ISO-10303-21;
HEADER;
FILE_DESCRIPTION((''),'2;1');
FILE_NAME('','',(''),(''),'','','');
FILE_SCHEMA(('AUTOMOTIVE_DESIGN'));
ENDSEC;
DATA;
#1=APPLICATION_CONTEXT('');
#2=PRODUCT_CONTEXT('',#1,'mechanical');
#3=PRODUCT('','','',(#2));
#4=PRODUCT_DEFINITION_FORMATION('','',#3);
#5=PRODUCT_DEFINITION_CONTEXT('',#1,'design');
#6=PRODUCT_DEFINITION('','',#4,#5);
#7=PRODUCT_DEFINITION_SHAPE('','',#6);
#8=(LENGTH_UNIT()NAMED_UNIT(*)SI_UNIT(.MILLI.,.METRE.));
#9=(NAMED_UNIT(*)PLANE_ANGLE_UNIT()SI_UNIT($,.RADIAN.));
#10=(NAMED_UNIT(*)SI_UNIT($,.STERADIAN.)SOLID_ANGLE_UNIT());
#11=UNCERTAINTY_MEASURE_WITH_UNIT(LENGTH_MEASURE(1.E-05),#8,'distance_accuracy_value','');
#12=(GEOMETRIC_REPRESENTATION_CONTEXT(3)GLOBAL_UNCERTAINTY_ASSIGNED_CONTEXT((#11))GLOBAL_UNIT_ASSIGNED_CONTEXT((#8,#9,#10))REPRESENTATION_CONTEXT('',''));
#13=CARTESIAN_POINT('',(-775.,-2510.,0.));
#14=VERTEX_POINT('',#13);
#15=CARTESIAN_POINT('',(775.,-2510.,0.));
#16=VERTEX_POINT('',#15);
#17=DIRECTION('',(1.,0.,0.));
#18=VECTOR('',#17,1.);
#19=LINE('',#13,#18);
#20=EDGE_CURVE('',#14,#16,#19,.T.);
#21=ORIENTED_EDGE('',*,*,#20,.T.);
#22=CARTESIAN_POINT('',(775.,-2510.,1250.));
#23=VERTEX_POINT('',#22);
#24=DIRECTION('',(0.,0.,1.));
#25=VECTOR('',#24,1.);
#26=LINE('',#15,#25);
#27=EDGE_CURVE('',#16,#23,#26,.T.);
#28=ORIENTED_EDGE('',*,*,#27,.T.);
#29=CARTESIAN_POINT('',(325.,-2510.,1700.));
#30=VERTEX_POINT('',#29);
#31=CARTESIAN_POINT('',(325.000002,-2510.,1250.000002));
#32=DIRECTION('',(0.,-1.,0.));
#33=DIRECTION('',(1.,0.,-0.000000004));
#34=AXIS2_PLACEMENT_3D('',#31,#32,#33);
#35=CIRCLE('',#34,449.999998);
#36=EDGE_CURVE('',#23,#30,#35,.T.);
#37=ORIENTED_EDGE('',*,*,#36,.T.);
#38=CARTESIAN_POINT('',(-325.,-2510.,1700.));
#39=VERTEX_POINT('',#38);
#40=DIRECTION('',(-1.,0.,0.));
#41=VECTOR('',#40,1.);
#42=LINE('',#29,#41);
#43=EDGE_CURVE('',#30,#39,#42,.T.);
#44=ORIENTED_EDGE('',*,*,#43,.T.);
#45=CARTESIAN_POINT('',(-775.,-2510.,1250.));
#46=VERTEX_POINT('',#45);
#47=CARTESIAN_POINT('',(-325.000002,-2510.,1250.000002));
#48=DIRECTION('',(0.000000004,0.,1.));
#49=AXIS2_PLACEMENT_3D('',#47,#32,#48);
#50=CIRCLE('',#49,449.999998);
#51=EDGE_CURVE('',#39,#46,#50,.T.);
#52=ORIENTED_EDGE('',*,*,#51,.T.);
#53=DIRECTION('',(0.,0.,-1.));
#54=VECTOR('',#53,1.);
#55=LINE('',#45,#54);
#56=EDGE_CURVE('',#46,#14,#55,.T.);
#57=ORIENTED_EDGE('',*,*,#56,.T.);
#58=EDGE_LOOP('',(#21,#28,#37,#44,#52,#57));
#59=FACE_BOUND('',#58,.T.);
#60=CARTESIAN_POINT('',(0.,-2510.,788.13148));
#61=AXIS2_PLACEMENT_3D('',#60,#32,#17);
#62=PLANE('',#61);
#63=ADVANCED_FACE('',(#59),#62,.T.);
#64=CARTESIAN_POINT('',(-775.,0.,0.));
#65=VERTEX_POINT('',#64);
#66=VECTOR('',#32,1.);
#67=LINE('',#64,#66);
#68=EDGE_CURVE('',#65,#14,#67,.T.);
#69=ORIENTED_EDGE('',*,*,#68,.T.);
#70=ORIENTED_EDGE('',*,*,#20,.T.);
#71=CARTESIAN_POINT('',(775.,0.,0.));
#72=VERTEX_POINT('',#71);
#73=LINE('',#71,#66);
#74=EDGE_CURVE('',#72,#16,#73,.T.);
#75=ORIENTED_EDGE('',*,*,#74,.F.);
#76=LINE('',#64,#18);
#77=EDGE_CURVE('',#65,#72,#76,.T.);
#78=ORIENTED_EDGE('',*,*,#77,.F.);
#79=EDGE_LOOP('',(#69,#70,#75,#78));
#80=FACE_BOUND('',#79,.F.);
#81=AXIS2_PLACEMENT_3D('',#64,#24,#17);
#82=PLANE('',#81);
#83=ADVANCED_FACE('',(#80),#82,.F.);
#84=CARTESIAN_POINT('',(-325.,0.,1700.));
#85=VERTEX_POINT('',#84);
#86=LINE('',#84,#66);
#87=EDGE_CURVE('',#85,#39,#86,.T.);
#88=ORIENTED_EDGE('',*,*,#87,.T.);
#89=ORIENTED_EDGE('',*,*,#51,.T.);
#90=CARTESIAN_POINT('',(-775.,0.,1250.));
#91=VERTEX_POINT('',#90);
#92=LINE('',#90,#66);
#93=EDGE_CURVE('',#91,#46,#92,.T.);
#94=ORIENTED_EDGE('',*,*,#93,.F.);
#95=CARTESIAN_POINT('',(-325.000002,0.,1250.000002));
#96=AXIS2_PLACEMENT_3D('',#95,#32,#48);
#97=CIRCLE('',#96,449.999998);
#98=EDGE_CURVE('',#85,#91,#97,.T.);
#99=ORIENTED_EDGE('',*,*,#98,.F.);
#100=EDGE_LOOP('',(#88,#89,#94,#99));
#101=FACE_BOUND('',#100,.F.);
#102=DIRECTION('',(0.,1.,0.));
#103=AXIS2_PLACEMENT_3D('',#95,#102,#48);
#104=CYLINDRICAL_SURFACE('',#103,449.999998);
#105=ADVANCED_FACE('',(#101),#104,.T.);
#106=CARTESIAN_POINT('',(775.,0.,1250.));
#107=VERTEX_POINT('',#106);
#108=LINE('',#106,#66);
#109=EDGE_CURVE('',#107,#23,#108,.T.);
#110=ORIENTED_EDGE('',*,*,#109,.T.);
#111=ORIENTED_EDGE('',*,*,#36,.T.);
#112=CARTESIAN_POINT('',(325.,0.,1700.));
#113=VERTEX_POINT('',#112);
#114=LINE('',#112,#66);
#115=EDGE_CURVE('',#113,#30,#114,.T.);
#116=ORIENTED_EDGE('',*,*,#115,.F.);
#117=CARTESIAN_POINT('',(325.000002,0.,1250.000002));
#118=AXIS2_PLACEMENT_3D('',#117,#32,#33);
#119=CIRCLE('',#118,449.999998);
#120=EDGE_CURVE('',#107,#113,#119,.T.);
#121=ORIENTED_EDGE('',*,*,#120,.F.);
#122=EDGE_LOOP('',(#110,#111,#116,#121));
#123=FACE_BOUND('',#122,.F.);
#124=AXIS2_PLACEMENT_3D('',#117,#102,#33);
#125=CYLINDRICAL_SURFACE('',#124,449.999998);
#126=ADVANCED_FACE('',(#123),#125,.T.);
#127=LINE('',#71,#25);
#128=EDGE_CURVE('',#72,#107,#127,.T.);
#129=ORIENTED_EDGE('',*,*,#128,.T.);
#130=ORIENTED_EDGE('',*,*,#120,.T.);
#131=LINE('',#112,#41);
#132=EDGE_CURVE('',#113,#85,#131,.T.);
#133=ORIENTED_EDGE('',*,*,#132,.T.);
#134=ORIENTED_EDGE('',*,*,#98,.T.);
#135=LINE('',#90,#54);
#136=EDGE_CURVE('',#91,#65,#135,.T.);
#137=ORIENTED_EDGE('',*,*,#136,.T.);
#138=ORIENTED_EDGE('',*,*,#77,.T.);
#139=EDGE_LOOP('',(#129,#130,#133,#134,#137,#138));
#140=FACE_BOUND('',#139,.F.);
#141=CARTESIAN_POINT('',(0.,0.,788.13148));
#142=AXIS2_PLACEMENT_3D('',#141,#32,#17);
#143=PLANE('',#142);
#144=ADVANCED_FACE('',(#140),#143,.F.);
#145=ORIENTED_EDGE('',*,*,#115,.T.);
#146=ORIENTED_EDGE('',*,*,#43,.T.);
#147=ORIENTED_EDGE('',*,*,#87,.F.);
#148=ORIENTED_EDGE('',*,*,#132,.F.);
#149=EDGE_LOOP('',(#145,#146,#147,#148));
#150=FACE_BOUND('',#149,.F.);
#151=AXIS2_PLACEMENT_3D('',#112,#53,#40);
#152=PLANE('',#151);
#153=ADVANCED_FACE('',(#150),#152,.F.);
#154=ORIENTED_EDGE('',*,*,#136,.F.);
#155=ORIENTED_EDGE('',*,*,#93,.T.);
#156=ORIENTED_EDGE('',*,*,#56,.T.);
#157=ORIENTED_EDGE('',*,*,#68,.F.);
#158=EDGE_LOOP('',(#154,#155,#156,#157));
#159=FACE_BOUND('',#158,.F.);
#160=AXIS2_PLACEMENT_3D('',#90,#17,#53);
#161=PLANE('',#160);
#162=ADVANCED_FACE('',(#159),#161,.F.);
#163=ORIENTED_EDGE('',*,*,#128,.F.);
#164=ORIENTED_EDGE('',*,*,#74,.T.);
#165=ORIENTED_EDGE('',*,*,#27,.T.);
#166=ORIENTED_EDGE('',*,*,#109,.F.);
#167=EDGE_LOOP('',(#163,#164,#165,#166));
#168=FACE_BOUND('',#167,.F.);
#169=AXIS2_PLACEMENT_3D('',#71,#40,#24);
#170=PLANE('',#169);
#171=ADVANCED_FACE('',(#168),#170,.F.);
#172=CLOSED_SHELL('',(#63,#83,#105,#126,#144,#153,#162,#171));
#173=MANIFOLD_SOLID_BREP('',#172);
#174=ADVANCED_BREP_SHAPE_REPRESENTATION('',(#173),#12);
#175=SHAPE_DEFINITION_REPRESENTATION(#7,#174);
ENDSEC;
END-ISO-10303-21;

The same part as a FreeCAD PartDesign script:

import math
import FreeCAD as App
import Part
import Sketcher
from FreeCAD import Vector

doc = App.newDocument("Part")
body = doc.addObject("PartDesign::Body", "Body")

# Sketch on XZ plane
sketch1 = body.newObject("Sketcher::SketchObject", "Sketch")
sketch1.AttachmentSupport = (doc.getObject("XZ_Plane"), [""])
sketch1.MapMode = "FlatFace"
sketch1.addGeometry(Part.LineSegment(Vector(-775, 1250, 0), Vector(-775, 0, 0)), False)
sketch1.addGeometry(Part.LineSegment(Vector(-775, 0, 0), Vector(775, 0, 0)), False)
sketch1.addGeometry(Part.LineSegment(Vector(775, 0, 0), Vector(775, 1250, 0)), False)
sketch1.addGeometry(Part.ArcOfCircle(Part.Circle(Vector(325, 1250, 0), Vector(0, 0, 1), 450), math.radians(0), math.radians(90)), False)
sketch1.addGeometry(Part.LineSegment(Vector(325, 1700, 0), Vector(-325, 1700, 0)), False)
sketch1.addGeometry(Part.ArcOfCircle(Part.Circle(Vector(-325, 1250, 0), Vector(0, 0, 1), 450), math.radians(90), math.radians(180)), False)
sketch1.addConstraint(Sketcher.Constraint("Coincident", 0, 2, 1, 1))
sketch1.addConstraint(Sketcher.Constraint("Coincident", 1, 2, 2, 1))
sketch1.addConstraint(Sketcher.Constraint("Tangent", 2, 2, 3, 1))
sketch1.addConstraint(Sketcher.Constraint("Tangent", 3, 2, 4, 1))
sketch1.addConstraint(Sketcher.Constraint("Tangent", 4, 2, 5, 1))
sketch1.addConstraint(Sketcher.Constraint("Tangent", 5, 2, 0, 1))
sketch1.addConstraint(Sketcher.Constraint("Vertical", 0))
sketch1.addConstraint(Sketcher.Constraint("Horizontal", 1))
sketch1.addConstraint(Sketcher.Constraint("Vertical", 2))
sketch1.addConstraint(Sketcher.Constraint("Horizontal", 4))
sketch1.addConstraint(Sketcher.Constraint("Equal", 3, 5))
sketch1.addConstraint(Sketcher.Constraint("Symmetric", 0, 2, 1, 2, -1, 1))
sketch1.addConstraint(Sketcher.Constraint("Radius", 3, 449.999998))
sketch1.addConstraint(Sketcher.Constraint("DistanceX", 1, 1, 1, 2, 1550.0))
sketch1.addConstraint(Sketcher.Constraint("DistanceY", 0, 2, 0, 1, 1250.0))
pad1 = body.newObject("PartDesign::Pad", "Pad")
pad1.Profile = sketch1
pad1.Length = 2510

doc.recompute()
